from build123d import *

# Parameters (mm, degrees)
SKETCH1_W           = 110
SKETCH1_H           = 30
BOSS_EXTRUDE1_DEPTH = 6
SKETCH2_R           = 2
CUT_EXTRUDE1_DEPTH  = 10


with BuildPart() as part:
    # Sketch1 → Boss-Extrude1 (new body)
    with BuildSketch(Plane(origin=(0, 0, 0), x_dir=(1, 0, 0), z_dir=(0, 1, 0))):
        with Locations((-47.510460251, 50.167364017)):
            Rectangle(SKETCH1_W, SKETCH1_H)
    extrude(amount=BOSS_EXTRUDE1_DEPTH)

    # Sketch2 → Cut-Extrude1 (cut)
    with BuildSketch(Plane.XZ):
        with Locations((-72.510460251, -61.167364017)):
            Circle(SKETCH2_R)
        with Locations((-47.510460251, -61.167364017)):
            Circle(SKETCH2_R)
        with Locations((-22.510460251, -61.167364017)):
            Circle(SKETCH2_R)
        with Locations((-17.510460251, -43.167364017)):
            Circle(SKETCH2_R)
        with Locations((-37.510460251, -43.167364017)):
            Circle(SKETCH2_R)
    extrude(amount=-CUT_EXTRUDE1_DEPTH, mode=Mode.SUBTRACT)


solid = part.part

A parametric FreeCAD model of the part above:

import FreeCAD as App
import Part
import Sketcher

doc = App.newDocument("Part")
body = doc.addObject("PartDesign::Body", "Body")

# Sketch on XZ plane
sketch1 = body.newObject("Sketcher::SketchObject", "Sketch")
sketch1.AttachmentSupport = (doc.getObject("XZ_Plane"), [""])
sketch1.MapMode = "FlatFace"
sketch1.addGeometry(Part.LineSegment(App.Vector(-102.51046, -65.167364, 0), App.Vector(-102.51046, -35.167364, 0)), False)
sketch1.addGeometry(Part.LineSegment(App.Vector(-102.51046, -35.167364, 0), App.Vector(7.48954, -35.167364, 0)), False)
sketch1.addGeometry(Part.LineSegment(App.Vector(7.48954, -35.167364, 0), App.Vector(7.48954, -65.167364, 0)), False)
sketch1.addGeometry(Part.LineSegment(App.Vector(7.48954, -65.167364, 0), App.Vector(-102.51046, -65.167364, 0)), False)
sketch1.addConstraint(Sketcher.Constraint("Coincident", 0, 2, 1, 1))
sketch1.addConstraint(Sketcher.Constraint("Coincident", 1, 2, 2, 1))
sketch1.addConstraint(Sketcher.Constraint("Coincident", 2, 2, 3, 1))
sketch1.addConstraint(Sketcher.Constraint("Coincident", 3, 2, 0, 1))
sketch1.addConstraint(Sketcher.Constraint("Vertical", 0))
sketch1.addConstraint(Sketcher.Constraint("Horizontal", 1))
sketch1.addConstraint(Sketcher.Constraint("Vertical", 2))
sketch1.addConstraint(Sketcher.Constraint("Horizontal", 3))
sketch1.addConstraint(Sketcher.Constraint("DistanceX", 1, 1, 1, 2, 110.0))
sketch1.addConstraint(Sketcher.Constraint("DistanceY", 0, 1, 0, 2, 30.0))
sketch1.addConstraint(Sketcher.Constraint("DistanceX", 0, 2, -1, 1, 102.51046))
sketch1.addConstraint(Sketcher.Constraint("DistanceY", 0, 2, -1, 1, 35.167364))
pad1 = body.newObject("PartDesign::Pad", "Pad")
pad1.Profile = sketch1
pad1.Length = 6
pad1.Reversed = True

# Sketch on XZ plane
sketch2 = body.newObject("Sketcher::SketchObject", "Sketch001")
sketch2.AttachmentSupport = (doc.getObject("XZ_Plane"), [""])
sketch2.MapMode = "FlatFace"
sketch2.addGeometry(Part.Circle(App.Vector(-72.51046, -61.167364, 0), App.Vector(0, 0, 1), 2), False)
sketch2.addGeometry(Part.Circle(App.Vector(-47.51046, -61.167364, 0), App.Vector(0, 0, 1), 2), False)
sketch2.addGeometry(Part.Circle(App.Vector(-22.51046, -61.167364, 0), App.Vector(0, 0, 1), 2), False)
sketch2.addGeometry(Part.Circle(App.Vector(-17.51046, -43.167364, 0), App.Vector(0, 0, 1), 2), False)
sketch2.addGeometry(Part.Circle(App.Vector(-37.51046, -43.167364, 0), App.Vector(0, 0, 1), 2), False)
sketch2.addConstraint(Sketcher.Constraint("Equal", 0, 1))
sketch2.addConstraint(Sketcher.Constraint("Equal", 1, 2))
sketch2.addConstraint(Sketcher.Constraint("Equal", 2, 3))
sketch2.addConstraint(Sketcher.Constraint("Equal", 3, 4))
sketch2.addConstraint(Sketcher.Constraint("Horizontal", 0, 3, 1, 3))
sketch2.addConstraint(Sketcher.Constraint("Horizontal", 1, 3, 2, 3))
sketch2.addConstraint(Sketcher.Constraint("Horizontal", 3, 3, 4, 3))
sketch2.addConstraint(Sketcher.Constraint("Diameter", 0, 4.0))
sketch2.addConstraint(Sketcher.Constraint("DistanceX", 0, 3, 1, 3, 25.0))
sketch2.addConstraint(Sketcher.Constraint("DistanceX", 1, 3, 2, 3, 25.0))
sketch2.addConstraint(Sketcher.Constraint("DistanceX", 2, 3, 3, 3, 5.0))
sketch2.addConstraint(Sketcher.Constraint("DistanceY", 2, 3, 3, 3, 18.0))
sketch2.addConstraint(Sketcher.Constraint("DistanceX", 4, 3, 3, 3, 20.0))
sketch2.addConstraint(Sketcher.Constraint("DistanceX", 0, 3, -1, 1, 72.51046))
sketch2.addConstraint(Sketcher.Constraint("DistanceY", 0, 3, -1, 1, 61.167364))
pocket1 = body.newObject("PartDesign::Pocket", "Pocket")
pocket1.Profile = sketch2
pocket1.Length = 10

doc.recompute()
